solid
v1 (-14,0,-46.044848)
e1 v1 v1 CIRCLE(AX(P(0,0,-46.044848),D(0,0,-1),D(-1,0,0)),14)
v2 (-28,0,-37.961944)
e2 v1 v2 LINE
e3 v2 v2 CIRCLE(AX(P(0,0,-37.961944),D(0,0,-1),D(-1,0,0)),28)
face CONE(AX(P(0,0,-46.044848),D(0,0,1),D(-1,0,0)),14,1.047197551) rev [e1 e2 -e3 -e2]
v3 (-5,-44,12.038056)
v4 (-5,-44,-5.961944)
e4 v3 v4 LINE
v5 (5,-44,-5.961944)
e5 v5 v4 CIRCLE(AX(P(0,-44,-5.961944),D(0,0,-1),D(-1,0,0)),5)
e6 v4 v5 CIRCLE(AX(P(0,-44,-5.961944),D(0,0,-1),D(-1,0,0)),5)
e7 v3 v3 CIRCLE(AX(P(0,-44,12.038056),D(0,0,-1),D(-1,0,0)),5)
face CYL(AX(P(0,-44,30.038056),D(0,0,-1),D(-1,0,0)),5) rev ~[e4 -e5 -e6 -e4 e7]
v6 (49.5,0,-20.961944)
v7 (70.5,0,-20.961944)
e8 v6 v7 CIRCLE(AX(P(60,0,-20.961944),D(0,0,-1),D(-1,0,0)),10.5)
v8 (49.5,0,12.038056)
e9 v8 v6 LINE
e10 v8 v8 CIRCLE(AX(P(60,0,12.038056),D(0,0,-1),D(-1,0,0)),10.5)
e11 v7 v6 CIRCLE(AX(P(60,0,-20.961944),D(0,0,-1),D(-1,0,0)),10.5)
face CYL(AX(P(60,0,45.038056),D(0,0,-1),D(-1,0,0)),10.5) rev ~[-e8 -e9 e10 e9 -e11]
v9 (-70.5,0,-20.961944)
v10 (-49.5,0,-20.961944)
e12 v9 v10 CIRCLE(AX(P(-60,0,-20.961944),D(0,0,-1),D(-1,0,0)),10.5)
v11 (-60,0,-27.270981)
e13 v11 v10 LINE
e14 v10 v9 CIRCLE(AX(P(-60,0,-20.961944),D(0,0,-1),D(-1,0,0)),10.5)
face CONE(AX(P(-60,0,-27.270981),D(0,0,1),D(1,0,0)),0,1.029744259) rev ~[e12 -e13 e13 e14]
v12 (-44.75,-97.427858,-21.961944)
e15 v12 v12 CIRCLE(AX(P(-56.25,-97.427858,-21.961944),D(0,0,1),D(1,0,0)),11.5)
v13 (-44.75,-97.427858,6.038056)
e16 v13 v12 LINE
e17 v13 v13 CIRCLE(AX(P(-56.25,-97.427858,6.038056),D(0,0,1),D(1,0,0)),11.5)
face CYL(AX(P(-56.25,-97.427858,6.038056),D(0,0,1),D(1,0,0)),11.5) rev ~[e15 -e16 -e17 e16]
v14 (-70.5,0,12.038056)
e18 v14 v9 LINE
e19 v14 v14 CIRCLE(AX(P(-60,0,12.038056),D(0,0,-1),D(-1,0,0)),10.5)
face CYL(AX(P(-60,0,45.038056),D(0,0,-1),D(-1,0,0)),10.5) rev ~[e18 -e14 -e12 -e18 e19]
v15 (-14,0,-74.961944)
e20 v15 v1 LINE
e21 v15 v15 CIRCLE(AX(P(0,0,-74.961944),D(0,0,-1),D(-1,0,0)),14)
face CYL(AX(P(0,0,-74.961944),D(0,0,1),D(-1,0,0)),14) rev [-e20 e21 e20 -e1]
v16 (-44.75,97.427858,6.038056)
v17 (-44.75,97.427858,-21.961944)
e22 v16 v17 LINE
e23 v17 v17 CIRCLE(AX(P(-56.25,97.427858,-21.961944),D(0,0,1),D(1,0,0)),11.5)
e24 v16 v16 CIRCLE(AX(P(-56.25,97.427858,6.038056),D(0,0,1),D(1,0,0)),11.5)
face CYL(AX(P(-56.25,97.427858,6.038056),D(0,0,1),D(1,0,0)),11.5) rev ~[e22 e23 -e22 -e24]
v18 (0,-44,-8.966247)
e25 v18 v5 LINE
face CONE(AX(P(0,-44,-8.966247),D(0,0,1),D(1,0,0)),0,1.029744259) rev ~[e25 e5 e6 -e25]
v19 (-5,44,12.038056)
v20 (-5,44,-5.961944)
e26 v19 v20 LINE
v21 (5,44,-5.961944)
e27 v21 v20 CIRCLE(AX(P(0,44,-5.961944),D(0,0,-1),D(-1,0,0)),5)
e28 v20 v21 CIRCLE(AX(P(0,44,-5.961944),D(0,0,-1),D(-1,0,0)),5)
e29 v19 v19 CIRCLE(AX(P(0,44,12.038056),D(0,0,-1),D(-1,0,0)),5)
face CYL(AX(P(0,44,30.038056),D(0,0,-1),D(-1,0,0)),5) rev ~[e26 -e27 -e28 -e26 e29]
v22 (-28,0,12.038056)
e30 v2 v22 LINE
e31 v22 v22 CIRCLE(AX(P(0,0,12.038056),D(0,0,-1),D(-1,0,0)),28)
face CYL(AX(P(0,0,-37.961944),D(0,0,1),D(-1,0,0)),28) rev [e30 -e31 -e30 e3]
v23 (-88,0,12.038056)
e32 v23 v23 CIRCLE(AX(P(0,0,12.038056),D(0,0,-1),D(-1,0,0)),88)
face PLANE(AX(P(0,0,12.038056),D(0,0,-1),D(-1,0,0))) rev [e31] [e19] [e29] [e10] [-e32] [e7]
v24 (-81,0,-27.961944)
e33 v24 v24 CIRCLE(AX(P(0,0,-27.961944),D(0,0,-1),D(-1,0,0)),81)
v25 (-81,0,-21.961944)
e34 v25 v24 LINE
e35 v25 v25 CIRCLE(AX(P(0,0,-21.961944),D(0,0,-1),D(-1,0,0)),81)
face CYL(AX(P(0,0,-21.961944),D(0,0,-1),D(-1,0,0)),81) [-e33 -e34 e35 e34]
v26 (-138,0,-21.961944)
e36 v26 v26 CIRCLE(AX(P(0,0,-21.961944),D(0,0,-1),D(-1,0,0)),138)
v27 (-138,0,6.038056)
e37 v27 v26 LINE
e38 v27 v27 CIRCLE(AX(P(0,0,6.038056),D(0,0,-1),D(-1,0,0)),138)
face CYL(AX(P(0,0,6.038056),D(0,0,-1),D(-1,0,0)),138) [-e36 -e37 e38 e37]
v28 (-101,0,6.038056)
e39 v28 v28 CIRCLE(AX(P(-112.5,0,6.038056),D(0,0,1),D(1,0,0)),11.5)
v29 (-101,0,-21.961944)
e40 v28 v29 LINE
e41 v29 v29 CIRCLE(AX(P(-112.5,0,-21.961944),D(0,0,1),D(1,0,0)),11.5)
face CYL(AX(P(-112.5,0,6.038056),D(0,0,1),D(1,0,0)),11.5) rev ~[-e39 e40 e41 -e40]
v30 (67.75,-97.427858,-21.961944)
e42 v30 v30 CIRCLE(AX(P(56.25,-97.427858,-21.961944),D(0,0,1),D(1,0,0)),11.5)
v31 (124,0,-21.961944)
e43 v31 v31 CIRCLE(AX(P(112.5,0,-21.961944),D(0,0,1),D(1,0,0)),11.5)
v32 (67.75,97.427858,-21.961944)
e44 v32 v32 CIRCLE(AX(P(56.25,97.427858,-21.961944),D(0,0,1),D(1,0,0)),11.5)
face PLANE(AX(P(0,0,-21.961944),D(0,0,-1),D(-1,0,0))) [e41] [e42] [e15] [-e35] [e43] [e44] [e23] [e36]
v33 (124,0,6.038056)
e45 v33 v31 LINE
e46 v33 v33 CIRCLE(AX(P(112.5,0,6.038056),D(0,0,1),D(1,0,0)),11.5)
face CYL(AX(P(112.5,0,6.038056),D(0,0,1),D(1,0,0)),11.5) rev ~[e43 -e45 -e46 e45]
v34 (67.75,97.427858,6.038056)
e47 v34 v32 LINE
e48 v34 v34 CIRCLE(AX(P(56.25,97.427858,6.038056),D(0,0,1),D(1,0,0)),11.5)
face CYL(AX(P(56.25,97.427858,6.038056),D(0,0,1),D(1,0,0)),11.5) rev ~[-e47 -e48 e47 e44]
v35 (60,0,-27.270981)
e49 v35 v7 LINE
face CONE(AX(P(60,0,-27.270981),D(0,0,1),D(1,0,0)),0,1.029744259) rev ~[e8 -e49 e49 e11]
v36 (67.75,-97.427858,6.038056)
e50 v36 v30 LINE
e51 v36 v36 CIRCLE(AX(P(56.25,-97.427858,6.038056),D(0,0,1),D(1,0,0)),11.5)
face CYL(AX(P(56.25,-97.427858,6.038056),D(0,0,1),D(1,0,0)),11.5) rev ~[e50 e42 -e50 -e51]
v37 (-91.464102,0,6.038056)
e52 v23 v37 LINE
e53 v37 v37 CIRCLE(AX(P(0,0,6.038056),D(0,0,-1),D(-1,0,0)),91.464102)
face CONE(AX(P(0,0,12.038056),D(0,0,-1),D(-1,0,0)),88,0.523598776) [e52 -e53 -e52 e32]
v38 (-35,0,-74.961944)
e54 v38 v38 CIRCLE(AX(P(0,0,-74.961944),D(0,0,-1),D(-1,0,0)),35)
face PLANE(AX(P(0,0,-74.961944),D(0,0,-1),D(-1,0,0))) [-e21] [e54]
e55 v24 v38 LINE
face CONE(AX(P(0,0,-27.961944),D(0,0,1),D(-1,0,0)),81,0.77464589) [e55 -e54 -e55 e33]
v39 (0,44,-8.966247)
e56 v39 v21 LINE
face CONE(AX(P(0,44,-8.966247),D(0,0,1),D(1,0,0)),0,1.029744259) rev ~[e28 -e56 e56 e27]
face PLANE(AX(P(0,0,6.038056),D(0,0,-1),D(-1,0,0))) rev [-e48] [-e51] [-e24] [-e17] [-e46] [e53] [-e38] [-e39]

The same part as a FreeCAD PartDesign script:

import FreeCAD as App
import Part
import Sketcher
from FreeCAD import Vector
Q = App.Units.Quantity


def add_polygon(sketch, points):
    """Adds a closed chain of lines whose ends are joined by coincident constraints."""
    first, n = sketch.GeometryCount, len(points)
    for a, b in zip(points, points[1:] + points[:1]):
        sketch.addGeometry(Part.LineSegment(App.Vector(*a, 0), App.Vector(*b, 0)), False)
    for i in range(n):
        sketch.addConstraint(Sketcher.Constraint("Coincident", first + i, 2, first + (i + 1) % n, 1))

doc = App.newDocument("Part")
body = doc.addObject("PartDesign::Body", "Body")

sketch1 = doc.addObject("Sketcher::SketchObject", "Sketch")
body.addObject(sketch1)
sketch1.AttachmentSupport = (doc.XZ_Plane, [""])
sketch1.MapMode = "FlatFace"
add_polygon(sketch1, [(-28, -38), (-28, 12), (-88, 12), (-91, 6), (-138, 6), (-138, -22), (-81, -22), (-81, -28), (-35, -75), (-14, -75), (-14, -46)])
sketch1.addConstraint(Sketcher.Constraint("Vertical", 0))
sketch1.addConstraint(Sketcher.Constraint("Horizontal", 1))
sketch1.addConstraint(Sketcher.Constraint("Horizontal", 3))
sketch1.addConstraint(Sketcher.Constraint("Vertical", 4))
sketch1.addConstraint(Sketcher.Constraint("Horizontal", 5))
sketch1.addConstraint(Sketcher.Constraint("Vertical", 6))
sketch1.addConstraint(Sketcher.Constraint("Horizontal", 8))
sketch1.addConstraint(Sketcher.Constraint("Vertical", 9))
sketch1.addConstraint(Sketcher.Constraint("Perpendicular", 2, 10))
sketch1.addConstraint(Sketcher.Constraint("DistanceX", 1, 2, 1, 1, 60.0))
sketch1.addConstraint(Sketcher.Constraint("DistanceX", 5, 1, 5, 2, 57.0))
sketch1.addConstraint(Sketcher.Constraint("DistanceX", 8, 1, 8, 2, 21.0))
sketch1.addConstraint(Sketcher.Constraint("DistanceY", 0, 1, 0, 2, 50.0))
sketch1.addConstraint(Sketcher.Constraint("DistanceY", 4, 2, 4, 1, 28.0))
sketch1.addConstraint(Sketcher.Constraint("DistanceY", 6, 2, 6, 1, 6.0))
sketch1.addConstraint(Sketcher.Constraint("Angle", 2, Q("-120 deg")))
sketch1.addConstraint(Sketcher.Constraint("DistanceX", 0, 2, -1, 1, 28.0))
sketch1.addConstraint(Sketcher.Constraint("DistanceX", 3, 2, -1, 1, 138.0))
sketch1.addConstraint(Sketcher.Constraint("DistanceX", 7, 2, -1, 1, 35.0))
sketch1.addConstraint(Sketcher.Constraint("DistanceY", 2, 2, 1, 2, 6.0))
sketch1.addConstraint(Sketcher.Constraint("DistanceY", 7, 2, 6, 2, 47.0))
sketch1.addConstraint(Sketcher.Constraint("DistanceY", -1, 1, 0, 2, 12.038056))
revolution = doc.addObject("PartDesign::Revolution", "Revolution")
body.addObject(revolution)
revolution.Profile = sketch1
revolution.ReferenceAxis = (sketch1, ["V_Axis"])
revolution.Angle = 360

sketch2 = doc.addObject("Sketcher::SketchObject", "Sketch001")
body.addObject(sketch2)
sketch2.AttachmentSupport = (doc.XY_Plane, [""])
sketch2.MapMode = "FlatFace"
sketch2.AttachmentOffset = App.Placement(Vector(0, 0, 6.038056), App.Rotation())
sketch2.addGeometry(Part.Circle(Vector(-112, 0, 0), Vector(0, 0, 1), 12), False)
sketch2.addConstraint(Sketcher.Constraint("PointOnObject", 0, 3, -1))
sketch2.addConstraint(Sketcher.Constraint("Diameter", 0, 23.0))
sketch2.addConstraint(Sketcher.Constraint("DistanceX", 0, 3, -1, 1, 112.5))
pocket1 = doc.addObject("PartDesign::Pocket", "Pocket")
body.addObject(pocket1)
pocket1.Profile = sketch2
pocket1.Type = "ThroughAll"

sketch3 = doc.addObject("Sketcher::SketchObject", "Sketch002")
body.addObject(sketch3)
sketch3.AttachmentSupport = (doc.XY_Plane, [""])
sketch3.MapMode = "FlatFace"
sketch3.AttachmentOffset = App.Placement(Vector(0, 0, 6.038056), App.Rotation())
sketch3.addGeometry(Part.Circle(Vector(-56, 97, 0), Vector(0, 0, 1), 12), False)
sketch3.addGeometry(Part.Circle(Vector(56, 97, 0), Vector(0, 0, 1), 12), False)
sketch3.addGeometry(Part.Circle(Vector(112, 0, 0), Vector(0, 0, 1), 12), False)
sketch3.addGeometry(Part.Circle(Vector(56, -97, 0), Vector(0, 0, 1), 12), False)
sketch3.addGeometry(Part.Circle(Vector(-56, -97, 0), Vector(0, 0, 1), 12), False)
sketch3.addConstraint(Sketcher.Constraint("Equal", 0, 1))
sketch3.addConstraint(Sketcher.Constraint("Equal", 1, 2))
sketch3.addConstraint(Sketcher.Constraint("Equal", 2, 3))
sketch3.addConstraint(Sketcher.Constraint("Equal", 3, 4))
sketch3.addConstraint(Sketcher.Constraint("Symmetric", 0, 3, 3, 3, -1, 1))
sketch3.addConstraint(Sketcher.Constraint("Symmetric", 1, 3, 4, 3, -1, 1))
sketch3.addConstraint(Sketcher.Constraint("Symmetric", 0, 3, 1, 3, -2))
sketch3.addConstraint(Sketcher.Constraint("PointOnObject", 2, 3, -1))
sketch3.addConstraint(Sketcher.Constraint("Diameter", 0, 23.0))
sketch3.addConstraint(Sketcher.Constraint("DistanceX", -1, 1, 2, 3, 112.5))
sketch3.addConstraint(Sketcher.Constraint("DistanceX", 0, 3, 1, 3, 112.5))
sketch3.addConstraint(Sketcher.Constraint("DistanceY", -1, 1, 0, 3, 97.427858))
pocket2 = doc.addObject("PartDesign::Pocket", "Pocket001")
body.addObject(pocket2)
pocket2.Profile = sketch3
pocket2.Type = "ThroughAll"

sketch4 = doc.addObject("Sketcher::SketchObject", "Sketch003")
body.addObject(sketch4)
sketch4.AttachmentSupport = (doc.XY_Plane, [""])
sketch4.MapMode = "FlatFace"
sketch4.AttachmentOffset = App.Placement(Vector(0, 0, 12.038056), App.Rotation())
sketch4.addGeometry(Part.Circle(Vector(-60, 0, 0), Vector(0, 0, 1), 10), False)
sketch4.addGeometry(Part.Circle(Vector(60, 0, 0), Vector(0, 0, 1), 10), False)
sketch4.addConstraint(Sketcher.Constraint("Equal", 0, 1))
sketch4.addConstraint(Sketcher.Constraint("Symmetric", 0, 3, 1, 3, -1, 1))
sketch4.addConstraint(Sketcher.Constraint("PointOnObject", 0, 3, -1))
sketch4.addConstraint(Sketcher.Constraint("Diameter", 0, 21.0))
sketch4.addConstraint(Sketcher.Constraint("DistanceX", 0, 3, -1, 1, 60.0))
doc.recompute()
hole = doc.addObject("PartDesign::Hole", "Hole")
body.addObject(hole)
hole.Profile = sketch4
hole.ThreadType = "None"
hole.Diameter = 21
hole.DepthType = "Dimension"
hole.Depth = 33
hole.DrillPoint = "Angled"
hole.DrillPointAngle = 118

sketch5 = doc.addObject("Sketcher::SketchObject", "Sketch004")
body.addObject(sketch5)
sketch5.AttachmentSupport = (doc.XY_Plane, [""])
sketch5.MapMode = "FlatFace"
sketch5.AttachmentOffset = App.Placement(Vector(0, 0, 12.038056), App.Rotation())
sketch5.addGeometry(Part.Circle(Vector(0, 44, 0), Vector(0, 0, 1), 5), False)
sketch5.addGeometry(Part.Circle(Vector(0, -44, 0), Vector(0, 0, 1), 5), False)
sketch5.addConstraint(Sketcher.Constraint("Equal", 0, 1))
sketch5.addConstraint(Sketcher.Constraint("Symmetric", 0, 3, 1, 3, -1, 1))
sketch5.addConstraint(Sketcher.Constraint("PointOnObject", 0, 3, -2))
sketch5.addConstraint(Sketcher.Constraint("Diameter", 0, 10.0))
sketch5.addConstraint(Sketcher.Constraint("DistanceY", -1, 1, 0, 3, 44.0))
doc.recompute()
hole2 = doc.addObject("PartDesign::Hole", "Hole001")
body.addObject(hole2)
hole2.Profile = sketch5
hole2.ThreadType = "None"
hole2.Diameter = 10
hole2.DepthType = "Dimension"
hole2.Depth = 18
hole2.DrillPoint = "Angled"
hole2.DrillPointAngle = 118

doc.recompute()
